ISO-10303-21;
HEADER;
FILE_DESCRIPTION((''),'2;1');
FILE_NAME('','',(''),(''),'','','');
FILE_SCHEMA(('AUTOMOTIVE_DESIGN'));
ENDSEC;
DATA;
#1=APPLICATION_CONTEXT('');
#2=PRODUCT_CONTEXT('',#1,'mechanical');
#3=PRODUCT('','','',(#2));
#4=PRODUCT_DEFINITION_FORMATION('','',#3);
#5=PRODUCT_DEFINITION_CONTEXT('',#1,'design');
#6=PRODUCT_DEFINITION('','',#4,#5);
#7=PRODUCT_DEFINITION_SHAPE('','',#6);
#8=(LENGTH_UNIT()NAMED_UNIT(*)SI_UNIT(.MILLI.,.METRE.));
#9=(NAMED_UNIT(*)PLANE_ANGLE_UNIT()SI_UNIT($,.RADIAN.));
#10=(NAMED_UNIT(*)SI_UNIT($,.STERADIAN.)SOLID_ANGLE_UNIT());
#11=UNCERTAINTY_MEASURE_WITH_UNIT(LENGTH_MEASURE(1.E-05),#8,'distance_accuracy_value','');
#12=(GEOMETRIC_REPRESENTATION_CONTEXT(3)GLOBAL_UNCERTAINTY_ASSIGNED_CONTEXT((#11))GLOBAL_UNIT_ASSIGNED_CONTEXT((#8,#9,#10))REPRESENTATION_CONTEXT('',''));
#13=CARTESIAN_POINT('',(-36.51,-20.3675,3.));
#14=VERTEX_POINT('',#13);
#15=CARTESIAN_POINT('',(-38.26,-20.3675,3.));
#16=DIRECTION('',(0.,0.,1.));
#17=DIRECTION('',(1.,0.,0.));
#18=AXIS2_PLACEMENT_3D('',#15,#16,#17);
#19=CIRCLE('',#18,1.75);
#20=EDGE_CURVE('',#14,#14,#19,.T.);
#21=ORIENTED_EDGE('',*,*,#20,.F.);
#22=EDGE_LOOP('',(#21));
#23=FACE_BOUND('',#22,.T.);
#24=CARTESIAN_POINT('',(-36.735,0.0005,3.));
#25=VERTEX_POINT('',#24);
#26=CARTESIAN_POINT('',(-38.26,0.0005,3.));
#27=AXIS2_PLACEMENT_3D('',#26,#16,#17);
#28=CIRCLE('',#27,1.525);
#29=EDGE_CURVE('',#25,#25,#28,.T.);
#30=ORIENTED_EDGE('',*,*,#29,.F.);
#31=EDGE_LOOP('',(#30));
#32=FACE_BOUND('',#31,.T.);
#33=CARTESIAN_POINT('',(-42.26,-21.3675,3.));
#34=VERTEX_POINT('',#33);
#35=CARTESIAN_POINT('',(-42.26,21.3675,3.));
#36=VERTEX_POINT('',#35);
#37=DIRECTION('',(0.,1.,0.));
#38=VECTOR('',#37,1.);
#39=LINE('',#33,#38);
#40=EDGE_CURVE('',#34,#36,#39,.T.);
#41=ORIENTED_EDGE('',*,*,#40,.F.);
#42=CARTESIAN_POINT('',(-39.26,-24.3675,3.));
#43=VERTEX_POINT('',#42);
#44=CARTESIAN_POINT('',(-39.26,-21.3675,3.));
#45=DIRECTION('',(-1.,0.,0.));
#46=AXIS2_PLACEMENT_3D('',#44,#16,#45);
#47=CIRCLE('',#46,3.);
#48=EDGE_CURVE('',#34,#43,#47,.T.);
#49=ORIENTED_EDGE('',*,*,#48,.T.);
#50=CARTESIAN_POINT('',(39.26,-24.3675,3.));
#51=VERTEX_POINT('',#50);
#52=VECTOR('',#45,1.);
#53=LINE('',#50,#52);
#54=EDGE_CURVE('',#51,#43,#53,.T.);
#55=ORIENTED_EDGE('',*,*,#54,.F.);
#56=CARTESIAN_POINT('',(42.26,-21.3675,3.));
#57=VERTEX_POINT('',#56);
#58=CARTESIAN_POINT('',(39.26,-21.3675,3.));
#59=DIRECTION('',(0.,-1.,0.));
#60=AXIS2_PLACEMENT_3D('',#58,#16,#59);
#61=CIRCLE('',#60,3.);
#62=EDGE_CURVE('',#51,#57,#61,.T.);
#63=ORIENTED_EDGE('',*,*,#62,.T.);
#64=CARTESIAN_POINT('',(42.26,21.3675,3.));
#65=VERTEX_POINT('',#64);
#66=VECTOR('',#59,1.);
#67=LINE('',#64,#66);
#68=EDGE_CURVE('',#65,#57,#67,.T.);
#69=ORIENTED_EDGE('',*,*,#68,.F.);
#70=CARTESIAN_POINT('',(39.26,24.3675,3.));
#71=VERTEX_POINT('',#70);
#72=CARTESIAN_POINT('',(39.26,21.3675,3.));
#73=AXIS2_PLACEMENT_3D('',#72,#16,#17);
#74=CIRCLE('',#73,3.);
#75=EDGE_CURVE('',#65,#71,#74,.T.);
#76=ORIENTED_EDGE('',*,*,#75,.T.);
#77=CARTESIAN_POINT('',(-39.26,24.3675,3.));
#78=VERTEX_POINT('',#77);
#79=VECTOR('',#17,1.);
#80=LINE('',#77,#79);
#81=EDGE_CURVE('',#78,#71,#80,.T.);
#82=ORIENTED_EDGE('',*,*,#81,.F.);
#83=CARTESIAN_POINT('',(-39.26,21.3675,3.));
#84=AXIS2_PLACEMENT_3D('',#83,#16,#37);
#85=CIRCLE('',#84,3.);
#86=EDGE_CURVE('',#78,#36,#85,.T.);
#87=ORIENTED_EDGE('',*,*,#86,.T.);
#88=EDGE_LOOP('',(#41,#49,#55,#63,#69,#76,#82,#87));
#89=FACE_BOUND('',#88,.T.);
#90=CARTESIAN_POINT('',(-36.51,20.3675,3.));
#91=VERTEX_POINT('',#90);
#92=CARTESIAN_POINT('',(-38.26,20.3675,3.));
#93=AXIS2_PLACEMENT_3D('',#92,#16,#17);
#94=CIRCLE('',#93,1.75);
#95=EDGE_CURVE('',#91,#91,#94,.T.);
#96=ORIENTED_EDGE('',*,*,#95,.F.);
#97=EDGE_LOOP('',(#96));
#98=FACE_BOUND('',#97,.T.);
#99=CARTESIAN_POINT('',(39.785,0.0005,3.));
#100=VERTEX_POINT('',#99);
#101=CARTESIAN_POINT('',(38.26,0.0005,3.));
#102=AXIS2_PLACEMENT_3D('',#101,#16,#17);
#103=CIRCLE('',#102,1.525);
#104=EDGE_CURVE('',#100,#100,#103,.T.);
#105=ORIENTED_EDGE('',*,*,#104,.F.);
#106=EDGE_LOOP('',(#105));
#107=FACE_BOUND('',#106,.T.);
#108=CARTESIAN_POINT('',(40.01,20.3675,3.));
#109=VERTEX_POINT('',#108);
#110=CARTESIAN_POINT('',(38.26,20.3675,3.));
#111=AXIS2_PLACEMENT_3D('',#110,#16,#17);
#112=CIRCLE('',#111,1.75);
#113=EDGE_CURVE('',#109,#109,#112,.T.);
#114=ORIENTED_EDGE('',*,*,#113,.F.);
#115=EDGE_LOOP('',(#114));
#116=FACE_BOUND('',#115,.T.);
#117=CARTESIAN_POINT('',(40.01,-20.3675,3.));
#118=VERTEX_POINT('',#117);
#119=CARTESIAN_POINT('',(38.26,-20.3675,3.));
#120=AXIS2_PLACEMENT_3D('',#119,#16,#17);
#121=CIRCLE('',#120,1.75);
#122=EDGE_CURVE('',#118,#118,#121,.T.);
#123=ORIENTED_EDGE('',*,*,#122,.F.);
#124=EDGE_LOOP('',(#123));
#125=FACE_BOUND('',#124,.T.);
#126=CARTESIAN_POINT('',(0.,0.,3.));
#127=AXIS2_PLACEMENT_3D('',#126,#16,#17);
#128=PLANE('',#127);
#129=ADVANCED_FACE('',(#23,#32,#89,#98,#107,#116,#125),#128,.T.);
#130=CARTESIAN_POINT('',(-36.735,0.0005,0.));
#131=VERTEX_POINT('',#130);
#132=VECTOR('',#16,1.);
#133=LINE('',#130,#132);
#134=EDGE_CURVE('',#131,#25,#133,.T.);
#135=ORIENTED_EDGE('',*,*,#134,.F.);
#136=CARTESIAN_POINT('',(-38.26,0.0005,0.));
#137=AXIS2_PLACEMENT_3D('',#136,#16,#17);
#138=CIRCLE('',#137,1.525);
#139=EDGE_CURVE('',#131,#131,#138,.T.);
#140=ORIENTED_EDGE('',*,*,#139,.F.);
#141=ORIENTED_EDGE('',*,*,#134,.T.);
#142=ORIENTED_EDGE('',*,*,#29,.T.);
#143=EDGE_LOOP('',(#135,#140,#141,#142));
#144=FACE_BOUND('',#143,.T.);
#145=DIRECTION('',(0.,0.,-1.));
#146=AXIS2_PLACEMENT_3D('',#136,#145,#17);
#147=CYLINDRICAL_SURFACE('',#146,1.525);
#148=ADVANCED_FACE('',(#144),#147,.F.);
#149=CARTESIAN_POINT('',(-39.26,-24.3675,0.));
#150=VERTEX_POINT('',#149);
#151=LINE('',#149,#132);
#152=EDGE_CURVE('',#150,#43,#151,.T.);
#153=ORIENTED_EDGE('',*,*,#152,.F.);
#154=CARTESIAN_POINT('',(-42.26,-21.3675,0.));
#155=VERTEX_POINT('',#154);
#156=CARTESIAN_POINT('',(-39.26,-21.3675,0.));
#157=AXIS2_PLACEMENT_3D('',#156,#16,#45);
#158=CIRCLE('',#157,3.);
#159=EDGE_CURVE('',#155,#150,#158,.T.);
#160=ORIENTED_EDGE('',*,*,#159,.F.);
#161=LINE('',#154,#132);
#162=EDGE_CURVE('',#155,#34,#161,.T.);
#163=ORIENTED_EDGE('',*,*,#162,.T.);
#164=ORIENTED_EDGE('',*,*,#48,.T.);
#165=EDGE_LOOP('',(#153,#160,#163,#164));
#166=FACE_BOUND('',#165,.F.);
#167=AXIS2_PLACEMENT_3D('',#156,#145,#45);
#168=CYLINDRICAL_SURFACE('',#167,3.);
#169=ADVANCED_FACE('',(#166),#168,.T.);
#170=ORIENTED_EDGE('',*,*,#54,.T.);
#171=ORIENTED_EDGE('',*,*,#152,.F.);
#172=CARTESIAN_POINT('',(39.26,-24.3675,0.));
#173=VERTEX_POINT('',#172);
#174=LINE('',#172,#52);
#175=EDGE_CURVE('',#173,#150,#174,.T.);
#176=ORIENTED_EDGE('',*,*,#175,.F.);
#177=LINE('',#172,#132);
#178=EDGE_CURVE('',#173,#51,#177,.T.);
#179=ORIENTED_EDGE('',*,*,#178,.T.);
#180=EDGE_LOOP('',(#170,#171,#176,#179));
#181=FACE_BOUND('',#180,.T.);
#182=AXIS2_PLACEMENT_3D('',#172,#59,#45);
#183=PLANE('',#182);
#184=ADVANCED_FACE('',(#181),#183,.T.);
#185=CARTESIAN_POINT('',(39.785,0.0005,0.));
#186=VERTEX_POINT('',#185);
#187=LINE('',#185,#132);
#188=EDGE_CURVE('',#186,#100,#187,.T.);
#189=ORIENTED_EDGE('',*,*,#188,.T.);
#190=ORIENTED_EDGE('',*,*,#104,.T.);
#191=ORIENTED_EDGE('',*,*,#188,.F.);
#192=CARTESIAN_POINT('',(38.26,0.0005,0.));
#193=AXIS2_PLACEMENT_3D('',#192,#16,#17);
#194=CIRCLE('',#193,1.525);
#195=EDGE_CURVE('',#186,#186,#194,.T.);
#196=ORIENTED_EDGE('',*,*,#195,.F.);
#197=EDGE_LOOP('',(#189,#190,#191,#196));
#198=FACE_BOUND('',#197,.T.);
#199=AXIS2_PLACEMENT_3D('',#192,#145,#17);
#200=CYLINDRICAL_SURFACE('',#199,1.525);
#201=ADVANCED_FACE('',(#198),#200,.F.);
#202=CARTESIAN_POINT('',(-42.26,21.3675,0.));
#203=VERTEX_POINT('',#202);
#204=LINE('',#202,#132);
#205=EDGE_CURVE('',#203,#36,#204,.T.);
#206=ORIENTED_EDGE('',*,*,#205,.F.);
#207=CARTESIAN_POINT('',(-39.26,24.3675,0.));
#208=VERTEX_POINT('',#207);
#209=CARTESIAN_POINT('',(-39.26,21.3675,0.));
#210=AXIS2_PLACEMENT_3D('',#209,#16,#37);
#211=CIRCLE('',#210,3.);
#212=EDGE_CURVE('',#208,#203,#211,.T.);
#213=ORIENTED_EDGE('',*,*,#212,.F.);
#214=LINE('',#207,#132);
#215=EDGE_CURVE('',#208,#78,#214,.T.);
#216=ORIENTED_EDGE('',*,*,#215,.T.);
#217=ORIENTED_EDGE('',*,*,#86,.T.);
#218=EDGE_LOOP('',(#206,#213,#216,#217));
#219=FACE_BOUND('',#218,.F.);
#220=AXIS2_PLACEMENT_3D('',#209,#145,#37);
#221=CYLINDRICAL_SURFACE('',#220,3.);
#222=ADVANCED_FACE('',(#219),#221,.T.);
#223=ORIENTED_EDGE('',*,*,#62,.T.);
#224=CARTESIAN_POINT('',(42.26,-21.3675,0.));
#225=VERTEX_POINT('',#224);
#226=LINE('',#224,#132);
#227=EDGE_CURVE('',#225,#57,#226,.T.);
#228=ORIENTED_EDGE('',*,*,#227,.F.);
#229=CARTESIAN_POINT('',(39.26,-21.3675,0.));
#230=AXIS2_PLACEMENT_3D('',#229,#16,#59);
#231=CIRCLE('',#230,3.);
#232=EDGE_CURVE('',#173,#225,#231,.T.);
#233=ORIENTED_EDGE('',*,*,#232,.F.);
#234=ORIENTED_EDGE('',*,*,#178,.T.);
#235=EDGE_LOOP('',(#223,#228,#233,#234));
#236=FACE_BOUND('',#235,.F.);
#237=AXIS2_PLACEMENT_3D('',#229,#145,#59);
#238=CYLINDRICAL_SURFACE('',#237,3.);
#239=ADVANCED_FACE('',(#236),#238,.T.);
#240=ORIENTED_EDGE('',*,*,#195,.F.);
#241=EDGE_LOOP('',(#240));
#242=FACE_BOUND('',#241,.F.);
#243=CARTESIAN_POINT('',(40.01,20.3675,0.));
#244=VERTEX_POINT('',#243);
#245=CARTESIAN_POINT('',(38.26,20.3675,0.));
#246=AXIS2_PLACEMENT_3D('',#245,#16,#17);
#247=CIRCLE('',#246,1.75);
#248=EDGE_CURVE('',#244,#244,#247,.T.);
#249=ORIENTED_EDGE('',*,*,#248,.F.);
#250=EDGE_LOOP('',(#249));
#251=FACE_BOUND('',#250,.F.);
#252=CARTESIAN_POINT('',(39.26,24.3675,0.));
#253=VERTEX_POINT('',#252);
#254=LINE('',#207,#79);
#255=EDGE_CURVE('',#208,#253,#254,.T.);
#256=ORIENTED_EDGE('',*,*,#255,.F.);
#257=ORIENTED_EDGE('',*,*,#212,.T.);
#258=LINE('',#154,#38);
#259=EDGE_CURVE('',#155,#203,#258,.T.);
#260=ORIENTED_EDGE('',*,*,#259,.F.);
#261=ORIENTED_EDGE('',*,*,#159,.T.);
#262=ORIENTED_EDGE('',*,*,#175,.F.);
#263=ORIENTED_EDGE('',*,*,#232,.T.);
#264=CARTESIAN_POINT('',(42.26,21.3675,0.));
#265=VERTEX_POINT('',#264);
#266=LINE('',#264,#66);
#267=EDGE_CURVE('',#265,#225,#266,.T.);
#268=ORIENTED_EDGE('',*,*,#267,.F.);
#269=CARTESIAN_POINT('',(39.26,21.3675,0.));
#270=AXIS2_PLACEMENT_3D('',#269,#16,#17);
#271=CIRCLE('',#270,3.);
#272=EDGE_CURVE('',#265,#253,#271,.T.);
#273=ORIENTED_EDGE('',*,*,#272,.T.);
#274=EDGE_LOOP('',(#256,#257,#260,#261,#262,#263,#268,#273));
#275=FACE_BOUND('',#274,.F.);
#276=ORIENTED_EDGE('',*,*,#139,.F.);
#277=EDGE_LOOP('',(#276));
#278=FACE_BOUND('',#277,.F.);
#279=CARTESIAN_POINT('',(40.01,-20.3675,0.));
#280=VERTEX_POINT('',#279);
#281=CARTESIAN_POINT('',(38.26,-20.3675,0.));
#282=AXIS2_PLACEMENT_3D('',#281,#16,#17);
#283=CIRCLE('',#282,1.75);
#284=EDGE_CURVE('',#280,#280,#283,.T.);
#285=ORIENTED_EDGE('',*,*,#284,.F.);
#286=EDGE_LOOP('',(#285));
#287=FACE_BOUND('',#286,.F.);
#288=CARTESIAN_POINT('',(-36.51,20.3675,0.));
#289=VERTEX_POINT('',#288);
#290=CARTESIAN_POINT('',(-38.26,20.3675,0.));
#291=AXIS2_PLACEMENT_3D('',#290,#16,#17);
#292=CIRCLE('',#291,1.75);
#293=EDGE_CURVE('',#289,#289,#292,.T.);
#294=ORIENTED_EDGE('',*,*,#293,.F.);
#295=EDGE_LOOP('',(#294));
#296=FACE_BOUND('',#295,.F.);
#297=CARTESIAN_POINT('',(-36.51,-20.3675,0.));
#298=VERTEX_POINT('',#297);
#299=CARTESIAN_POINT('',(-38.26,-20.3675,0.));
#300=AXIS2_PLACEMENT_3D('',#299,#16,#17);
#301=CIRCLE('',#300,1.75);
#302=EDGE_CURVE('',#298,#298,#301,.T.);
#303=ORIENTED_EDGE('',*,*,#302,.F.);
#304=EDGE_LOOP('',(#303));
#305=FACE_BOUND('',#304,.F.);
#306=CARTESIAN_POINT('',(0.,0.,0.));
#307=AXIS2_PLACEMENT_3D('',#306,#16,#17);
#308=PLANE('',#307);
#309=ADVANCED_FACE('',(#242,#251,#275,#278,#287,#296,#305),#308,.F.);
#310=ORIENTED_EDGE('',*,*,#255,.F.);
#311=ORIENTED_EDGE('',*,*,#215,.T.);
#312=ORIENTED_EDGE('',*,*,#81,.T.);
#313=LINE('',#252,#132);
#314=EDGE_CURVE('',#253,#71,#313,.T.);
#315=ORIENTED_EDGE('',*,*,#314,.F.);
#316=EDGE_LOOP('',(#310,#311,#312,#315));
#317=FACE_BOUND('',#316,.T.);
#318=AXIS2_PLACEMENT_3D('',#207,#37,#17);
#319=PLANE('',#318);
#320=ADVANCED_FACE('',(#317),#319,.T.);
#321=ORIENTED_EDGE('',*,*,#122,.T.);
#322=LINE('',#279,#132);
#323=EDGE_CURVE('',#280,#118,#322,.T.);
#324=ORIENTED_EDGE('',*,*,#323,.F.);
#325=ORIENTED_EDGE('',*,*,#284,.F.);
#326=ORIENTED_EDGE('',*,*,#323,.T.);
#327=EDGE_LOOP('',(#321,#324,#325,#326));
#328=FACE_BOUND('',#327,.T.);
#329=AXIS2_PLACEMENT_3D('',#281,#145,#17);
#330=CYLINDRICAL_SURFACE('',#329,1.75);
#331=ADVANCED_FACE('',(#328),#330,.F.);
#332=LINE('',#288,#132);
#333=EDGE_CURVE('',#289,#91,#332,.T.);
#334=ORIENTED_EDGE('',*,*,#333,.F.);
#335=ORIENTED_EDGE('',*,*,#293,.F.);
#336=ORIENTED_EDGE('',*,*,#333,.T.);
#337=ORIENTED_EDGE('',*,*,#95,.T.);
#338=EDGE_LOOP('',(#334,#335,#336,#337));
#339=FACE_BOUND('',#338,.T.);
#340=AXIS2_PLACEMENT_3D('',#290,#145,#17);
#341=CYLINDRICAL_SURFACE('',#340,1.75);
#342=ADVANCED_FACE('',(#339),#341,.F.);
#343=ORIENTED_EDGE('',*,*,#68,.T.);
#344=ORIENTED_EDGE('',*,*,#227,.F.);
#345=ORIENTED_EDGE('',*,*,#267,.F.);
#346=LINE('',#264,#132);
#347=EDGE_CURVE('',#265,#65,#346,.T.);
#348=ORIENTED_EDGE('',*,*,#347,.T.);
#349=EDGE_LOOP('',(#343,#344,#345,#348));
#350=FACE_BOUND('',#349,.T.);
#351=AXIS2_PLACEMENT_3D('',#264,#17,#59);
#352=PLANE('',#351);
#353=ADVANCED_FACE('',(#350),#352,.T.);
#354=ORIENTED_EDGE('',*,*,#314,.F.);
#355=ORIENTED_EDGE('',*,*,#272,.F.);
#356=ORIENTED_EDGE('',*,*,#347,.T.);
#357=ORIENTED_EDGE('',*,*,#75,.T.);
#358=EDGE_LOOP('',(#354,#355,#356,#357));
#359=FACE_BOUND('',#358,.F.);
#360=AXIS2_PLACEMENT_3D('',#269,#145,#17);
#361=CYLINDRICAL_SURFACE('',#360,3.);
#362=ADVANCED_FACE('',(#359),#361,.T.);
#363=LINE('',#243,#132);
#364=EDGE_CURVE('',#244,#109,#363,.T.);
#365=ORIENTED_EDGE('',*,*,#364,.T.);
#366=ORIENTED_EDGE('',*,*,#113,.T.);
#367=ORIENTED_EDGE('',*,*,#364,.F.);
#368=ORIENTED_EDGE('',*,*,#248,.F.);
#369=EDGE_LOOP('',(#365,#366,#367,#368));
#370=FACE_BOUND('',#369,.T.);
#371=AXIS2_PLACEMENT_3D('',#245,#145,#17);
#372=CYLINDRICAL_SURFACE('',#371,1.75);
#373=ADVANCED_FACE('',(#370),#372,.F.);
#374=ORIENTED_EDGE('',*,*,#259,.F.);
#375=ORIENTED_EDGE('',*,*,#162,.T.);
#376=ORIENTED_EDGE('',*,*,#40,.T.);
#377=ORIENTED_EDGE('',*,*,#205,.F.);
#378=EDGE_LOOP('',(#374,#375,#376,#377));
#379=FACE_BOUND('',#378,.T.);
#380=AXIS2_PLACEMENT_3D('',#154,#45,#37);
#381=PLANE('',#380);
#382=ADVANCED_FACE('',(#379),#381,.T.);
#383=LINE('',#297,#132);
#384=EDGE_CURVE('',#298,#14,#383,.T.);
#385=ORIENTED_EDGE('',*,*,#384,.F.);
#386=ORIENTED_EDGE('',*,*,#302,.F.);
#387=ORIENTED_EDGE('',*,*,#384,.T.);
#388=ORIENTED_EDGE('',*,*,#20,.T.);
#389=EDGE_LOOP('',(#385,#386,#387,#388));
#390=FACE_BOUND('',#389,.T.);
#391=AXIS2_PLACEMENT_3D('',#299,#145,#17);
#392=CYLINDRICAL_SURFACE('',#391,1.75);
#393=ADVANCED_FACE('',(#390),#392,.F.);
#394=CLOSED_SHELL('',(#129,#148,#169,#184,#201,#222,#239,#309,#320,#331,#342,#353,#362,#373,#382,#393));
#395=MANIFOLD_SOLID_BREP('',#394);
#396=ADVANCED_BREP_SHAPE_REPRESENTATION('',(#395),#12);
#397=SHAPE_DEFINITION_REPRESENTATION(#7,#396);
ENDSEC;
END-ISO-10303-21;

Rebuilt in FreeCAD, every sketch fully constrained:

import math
import FreeCAD as App
import Part
import Sketcher

V = App.Vector

doc = App.newDocument("Part")
body = doc.addObject("PartDesign::Body", "Body")

# Sketch on XY plane
sketch1 = body.newObject("Sketcher::SketchObject", "Sketch")
sketch1.AttachmentSupport = (doc.getObject("XY_Plane"), [""])
sketch1.MapMode = "FlatFace"
sketch1.addGeometry([
    Part.LineSegment(V(39.3, 24.4, 0), V(-39.3, 24.4, 0)),  # 0
    Part.ArcOfCircle(Part.Circle(V(-39.3, 21.4, 0), V(0, 0, 1), 3), math.radians(90), math.radians(180)),  # 1
    Part.LineSegment(V(-42.3, 21.4, 0), V(-42.3, -21.4, 0)),  # 2
    Part.ArcOfCircle(Part.Circle(V(-39.3, -21.4, 0), V(0, 0, 1), 3), math.radians(180), math.radians(270)),  # 3
    Part.LineSegment(V(-39.3, -24.4, 0), V(39.3, -24.4, 0)),  # 4
    Part.ArcOfCircle(Part.Circle(V(39.3, -21.4, 0), V(0, 0, 1), 3), math.radians(-90), math.radians(0)),  # 5
    Part.LineSegment(V(42.3, -21.4, 0), V(42.3, 21.4, 0)),  # 6
    Part.ArcOfCircle(Part.Circle(V(39.3, 21.4, 0), V(0, 0, 1), 3), math.radians(0), math.radians(90)),  # 7
    Part.Circle(V(-38.3, -20.4, 0), V(0, 0, 1), 1.8),  # 8
    Part.Circle(V(38.3, -20.4, 0), V(0, 0, 1), 1.8),  # 9
    Part.Circle(V(-38.3, 0, 0), V(0, 0, 1), 1.5),  # 10
    Part.Circle(V(-38.3, 20.4, 0), V(0, 0, 1), 1.8),  # 11
    Part.Circle(V(38.3, 0, 0), V(0, 0, 1), 1.5),  # 12
    Part.Circle(V(38.3, 20.4, 0), V(0, 0, 1), 1.8),  # 13
], False)
sketch1.addConstraint([
    Sketcher.Constraint("Tangent", 0, 2, 1, 1),
    Sketcher.Constraint("Tangent", 1, 2, 2, 1),
    Sketcher.Constraint("Tangent", 2, 2, 3, 1),
    Sketcher.Constraint("Tangent", 3, 2, 4, 1),
    Sketcher.Constraint("Tangent", 4, 2, 5, 1),
    Sketcher.Constraint("Tangent", 5, 2, 6, 1),
    Sketcher.Constraint("Tangent", 6, 2, 7, 1),
    Sketcher.Constraint("Tangent", 7, 2, 0, 1),
    Sketcher.Constraint("Horizontal", 0),
    Sketcher.Constraint("Vertical", 2),
    Sketcher.Constraint("Horizontal", 4),
    Sketcher.Constraint("Vertical", 6),
    Sketcher.Constraint("Equal", 1, 3),
    Sketcher.Constraint("Equal", 3, 5),
    Sketcher.Constraint("Equal", 5, 7),
    Sketcher.Constraint("Equal", 8, 9),
    Sketcher.Constraint("Equal", 9, 11),
    Sketcher.Constraint("Equal", 10, 12),
    Sketcher.Constraint("Equal", 11, 13),
    Sketcher.Constraint("Symmetric", 1, 3, 5, 3, -1, 1),
    Sketcher.Constraint("Symmetric", 9, 3, 11, 3, -1, 1),
    Sketcher.Constraint("Symmetric", 8, 3, 13, 3, -1, 1),
    Sketcher.Constraint("Symmetric", 8, 3, 9, 3, -2),
    Sketcher.Constraint("Symmetric", 10, 3, 12, 3, -2),
    Sketcher.Constraint("Vertical", 8, 3, 10, 3),
    Sketcher.Constraint("Radius", 1, 3.0),
    Sketcher.Constraint("Diameter", 8, 3.5),
    Sketcher.Constraint("Diameter", 10, 3.05),
    Sketcher.Constraint("DistanceY", 11, 3, 0, 2, 4.0),
    Sketcher.Constraint("DistanceX", 1, 2, 11, 3, 4.0),
    Sketcher.Constraint("DistanceY", 8, 3, 10, 3, 20.368),
    Sketcher.Constraint("DistanceX", 0, 2, 0, 1, 78.52),
    Sketcher.Constraint("DistanceY", 8, 3, -1, 1, 20.3675),
])
pad1 = body.newObject("PartDesign::Pad", "Pad")
pad1.Profile = sketch1
pad1.Length = 3

doc.recompute()
